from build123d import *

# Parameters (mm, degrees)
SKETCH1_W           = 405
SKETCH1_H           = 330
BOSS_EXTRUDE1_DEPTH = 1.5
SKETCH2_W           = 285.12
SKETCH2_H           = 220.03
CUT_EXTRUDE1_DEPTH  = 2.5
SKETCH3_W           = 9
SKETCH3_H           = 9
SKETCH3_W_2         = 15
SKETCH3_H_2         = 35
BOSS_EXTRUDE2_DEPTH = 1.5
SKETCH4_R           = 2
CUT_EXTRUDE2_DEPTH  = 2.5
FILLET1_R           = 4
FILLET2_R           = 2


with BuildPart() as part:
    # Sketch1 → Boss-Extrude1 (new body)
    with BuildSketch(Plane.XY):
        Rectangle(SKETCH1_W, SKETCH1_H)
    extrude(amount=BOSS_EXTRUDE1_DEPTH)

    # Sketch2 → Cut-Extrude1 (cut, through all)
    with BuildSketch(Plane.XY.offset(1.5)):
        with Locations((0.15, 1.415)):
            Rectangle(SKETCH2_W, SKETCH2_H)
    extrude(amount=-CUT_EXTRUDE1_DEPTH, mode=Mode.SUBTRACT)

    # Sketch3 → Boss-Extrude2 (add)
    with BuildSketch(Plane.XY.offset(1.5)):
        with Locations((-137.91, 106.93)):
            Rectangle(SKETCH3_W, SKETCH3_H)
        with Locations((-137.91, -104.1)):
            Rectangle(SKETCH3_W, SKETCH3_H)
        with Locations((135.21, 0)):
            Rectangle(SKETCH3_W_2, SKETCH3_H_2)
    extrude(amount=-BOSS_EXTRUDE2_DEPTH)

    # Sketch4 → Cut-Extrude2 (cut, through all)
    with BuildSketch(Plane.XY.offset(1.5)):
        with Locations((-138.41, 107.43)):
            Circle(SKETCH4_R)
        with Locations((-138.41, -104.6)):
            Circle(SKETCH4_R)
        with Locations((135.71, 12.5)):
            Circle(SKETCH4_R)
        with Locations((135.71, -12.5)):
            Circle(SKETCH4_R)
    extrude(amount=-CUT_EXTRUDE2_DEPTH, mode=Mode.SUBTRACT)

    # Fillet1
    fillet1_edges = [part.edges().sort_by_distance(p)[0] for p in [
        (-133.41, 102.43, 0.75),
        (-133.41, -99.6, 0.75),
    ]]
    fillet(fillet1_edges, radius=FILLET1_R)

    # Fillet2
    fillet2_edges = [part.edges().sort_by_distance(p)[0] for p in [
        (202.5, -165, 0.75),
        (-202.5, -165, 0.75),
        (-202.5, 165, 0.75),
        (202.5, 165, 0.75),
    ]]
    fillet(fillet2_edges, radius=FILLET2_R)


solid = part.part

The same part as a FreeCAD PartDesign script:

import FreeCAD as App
import Part
import Sketcher

V = App.Vector
Q = App.Units.Quantity


def edges_at(feature, points):
    """Names of the edges that pass closest to the given points."""
    edges = feature.Shape.Edges
    near = lambda p: min(range(len(edges)), key=lambda i: edges[i].distToShape(Part.Vertex(*p))[0])
    return sorted({f"Edge{near(p) + 1}" for p in points})


def add_polygon(sketch, points):
    """Adds a closed chain of lines whose ends are joined by coincident constraints."""
    first, n = sketch.GeometryCount, len(points)
    for a, b in zip(points, points[1:] + points[:1]):
        sketch.addGeometry(Part.LineSegment(App.Vector(*a, 0), App.Vector(*b, 0)), False)
    for i in range(n):
        sketch.addConstraint(Sketcher.Constraint("Coincident", first + i, 2, first + (i + 1) % n, 1))

doc = App.newDocument("Part")
body = doc.addObject("PartDesign::Body", "Body")

# Sketch on XY plane
sketch1 = doc.addObject("Sketcher::SketchObject", "Sketch")
body.addObject(sketch1)
sketch1.AttachmentSupport = (doc.XY_Plane, [""])
sketch1.MapMode = "FlatFace"
add_polygon(sketch1, [(-202, 165), (-202, -165), (202, -165), (202, 165)])  # lines 0-3
sketch1.addConstraint([
    Sketcher.Constraint("Vertical", 0),
    Sketcher.Constraint("Horizontal", 1),
    Sketcher.Constraint("Vertical", 2),
    Sketcher.Constraint("Horizontal", 3),
    Sketcher.Constraint("Symmetric", 0, 2, 2, 2, -1, 1),
    Sketcher.Constraint("DistanceX", 1, 1, 1, 2, Q("405 mm")),
    Sketcher.Constraint("DistanceY", 0, 2, 0, 1, Q("330 mm")),
])
pad1 = doc.addObject("PartDesign::Pad", "Pad")
body.addObject(pad1)
pad1.Profile = sketch1
pad1.Length = 1.5

# Sketch on XY plane
sketch2 = doc.addObject("Sketcher::SketchObject", "Sketch001")
body.addObject(sketch2)
sketch2.AttachmentSupport = (doc.XY_Plane, [""])
sketch2.MapMode = "FlatFace"
sketch2.AttachmentOffset = App.Placement(V(0, 0, 1.5), App.Rotation())
add_polygon(sketch2, [(-142, 111), (-142, -109), (143, -109), (143, 111)])  # lines 0-3
sketch2.addConstraint([
    Sketcher.Constraint("Vertical", 0),
    Sketcher.Constraint("Horizontal", 1),
    Sketcher.Constraint("Vertical", 2),
    Sketcher.Constraint("Horizontal", 3),
    Sketcher.Constraint("DistanceX", 1, 1, 1, 2, Q("285.12 mm")),
    Sketcher.Constraint("DistanceY", 0, 2, 0, 1, Q("220.03 mm")),
    Sketcher.Constraint("DistanceY", 0, 2, -1, 1, Q("108.6 mm")),
    Sketcher.Constraint("DistanceX", 0, 2, -1, 1, Q("142.41 mm")),
])
pocket1 = doc.addObject("PartDesign::Pocket", "Pocket")
body.addObject(pocket1)
pocket1.Profile = sketch2
pocket1.Type = "ThroughAll"

# Sketch on XY plane
sketch3 = doc.addObject("Sketcher::SketchObject", "Sketch002")
body.addObject(sketch3)
sketch3.AttachmentSupport = (doc.XY_Plane, [""])
sketch3.MapMode = "FlatFace"
sketch3.AttachmentOffset = App.Placement(V(0, 0, 1.5), App.Rotation())
add_polygon(sketch3, [(-142, 111), (-142, 102), (-133, 102), (-133, 111)])  # lines 0-3
add_polygon(sketch3, [(-142, -100), (-142, -109), (-133, -109), (-133, -100)])  # lines 4-7
add_polygon(sketch3, [(128, 18), (128, -18), (143, -18), (143, 18)])  # lines 8-11
sketch3.addConstraint([
    Sketcher.Constraint("Vertical", 0),
    Sketcher.Constraint("Horizontal", 1),
    Sketcher.Constraint("Vertical", 2),
    Sketcher.Constraint("Horizontal", 3),
    Sketcher.Constraint("Vertical", 4),
    Sketcher.Constraint("Horizontal", 5),
    Sketcher.Constraint("Vertical", 6),
    Sketcher.Constraint("Horizontal", 7),
    Sketcher.Constraint("Vertical", 8),
    Sketcher.Constraint("Horizontal", 9),
    Sketcher.Constraint("Vertical", 10),
    Sketcher.Constraint("Horizontal", 11),
    Sketcher.Constraint("Vertical", 3, 2, 4, 2),
    Sketcher.Constraint("Vertical", 2, 2, 5, 2),
    Sketcher.Constraint("Equal", 7, 0),
    Sketcher.Constraint("Equal", 2, 4),
    Sketcher.Constraint("DistanceX", 1, 1, 1, 2, Q("9 mm")),
    Sketcher.Constraint("DistanceX", 9, 1, 9, 2, Q("15 mm")),
    Sketcher.Constraint("DistanceY", 8, 2, 8, 1, Q("35 mm")),
    Sketcher.Constraint("DistanceY", 4, 2, -1, 1, Q("108.6 mm")),
    Sketcher.Constraint("DistanceY", 8, 2, -1, 1, Q("17.5 mm")),
    Sketcher.Constraint("DistanceX", 0, 2, -1, 1, Q("142.41 mm")),
    Sketcher.Constraint("DistanceY", -1, 1, 0, 2, Q("102.43 mm")),
    Sketcher.Constraint("DistanceX", -1, 1, 8, 2, Q("127.71 mm")),
])
pad2 = doc.addObject("PartDesign::Pad", "Pad001")
body.addObject(pad2)
pad2.Profile = sketch3
pad2.Length = 1.5
pad2.Reversed = True

# Sketch on XY plane
sketch4 = doc.addObject("Sketcher::SketchObject", "Sketch003")
body.addObject(sketch4)
sketch4.AttachmentSupport = (doc.XY_Plane, [""])
sketch4.MapMode = "FlatFace"
sketch4.AttachmentOffset = App.Placement(V(0, 0, 1.5), App.Rotation())
sketch4.addGeometry([
    Part.Circle(V(-138.4, 107.4, 0), V(0, 0, 1), 2),
    Part.Circle(V(-138.4, -104.6, 0), V(0, 0, 1), 2),
    Part.Circle(V(135.7, 12.5, 0), V(0, 0, 1), 2),
    Part.Circle(V(135.7, -12.5, 0), V(0, 0, 1), 2),
], False)
sketch4.addConstraint([
    Sketcher.Constraint("Equal", 0, 1),
    Sketcher.Constraint("Equal", 1, 2),
    Sketcher.Constraint("Equal", 2, 3),
    Sketcher.Constraint("Symmetric", 2, 3, 3, 3, -1),
    Sketcher.Constraint("Vertical", 0, 3, 1, 3),
    Sketcher.Constraint("Diameter", 0, Q("4 mm")),
    Sketcher.Constraint("DistanceY", 3, 3, 2, 3, Q("25 mm")),
    Sketcher.Constraint("DistanceY", 1, 3, -1, 1, Q("104.6 mm")),
    Sketcher.Constraint("DistanceX", 0, 3, -1, 1, Q("138.41 mm")),
    Sketcher.Constraint("DistanceY", -1, 1, 0, 3, Q("107.43 mm")),
    Sketcher.Constraint("DistanceX", -1, 1, 2, 3, Q("135.71 mm")),
])
pocket2 = doc.addObject("PartDesign::Pocket", "Pocket001")
body.addObject(pocket2)
pocket2.Profile = sketch4
pocket2.Type = "ThroughAll"
doc.recompute()

fillet = doc.addObject("PartDesign::Fillet", "Fillet")
body.addObject(fillet)
fillet.Base = (pocket2, edges_at(pocket2, [(-133.41, 102.43, 0.75), (-133.41, -99.6, 0.75)]))
fillet.Radius = 4
doc.recompute()

fillet2 = doc.addObject("PartDesign::Fillet", "Fillet001")
body.addObject(fillet2)
fillet2.Base = (fillet, edges_at(fillet, [
    (202.5, -165, 0.75),
    (-202.5, -165, 0.75),
    (-202.5, 165, 0.75),
    (202.5, 165, 0.75),
]))
fillet2.Radius = 2

doc.recompute()
